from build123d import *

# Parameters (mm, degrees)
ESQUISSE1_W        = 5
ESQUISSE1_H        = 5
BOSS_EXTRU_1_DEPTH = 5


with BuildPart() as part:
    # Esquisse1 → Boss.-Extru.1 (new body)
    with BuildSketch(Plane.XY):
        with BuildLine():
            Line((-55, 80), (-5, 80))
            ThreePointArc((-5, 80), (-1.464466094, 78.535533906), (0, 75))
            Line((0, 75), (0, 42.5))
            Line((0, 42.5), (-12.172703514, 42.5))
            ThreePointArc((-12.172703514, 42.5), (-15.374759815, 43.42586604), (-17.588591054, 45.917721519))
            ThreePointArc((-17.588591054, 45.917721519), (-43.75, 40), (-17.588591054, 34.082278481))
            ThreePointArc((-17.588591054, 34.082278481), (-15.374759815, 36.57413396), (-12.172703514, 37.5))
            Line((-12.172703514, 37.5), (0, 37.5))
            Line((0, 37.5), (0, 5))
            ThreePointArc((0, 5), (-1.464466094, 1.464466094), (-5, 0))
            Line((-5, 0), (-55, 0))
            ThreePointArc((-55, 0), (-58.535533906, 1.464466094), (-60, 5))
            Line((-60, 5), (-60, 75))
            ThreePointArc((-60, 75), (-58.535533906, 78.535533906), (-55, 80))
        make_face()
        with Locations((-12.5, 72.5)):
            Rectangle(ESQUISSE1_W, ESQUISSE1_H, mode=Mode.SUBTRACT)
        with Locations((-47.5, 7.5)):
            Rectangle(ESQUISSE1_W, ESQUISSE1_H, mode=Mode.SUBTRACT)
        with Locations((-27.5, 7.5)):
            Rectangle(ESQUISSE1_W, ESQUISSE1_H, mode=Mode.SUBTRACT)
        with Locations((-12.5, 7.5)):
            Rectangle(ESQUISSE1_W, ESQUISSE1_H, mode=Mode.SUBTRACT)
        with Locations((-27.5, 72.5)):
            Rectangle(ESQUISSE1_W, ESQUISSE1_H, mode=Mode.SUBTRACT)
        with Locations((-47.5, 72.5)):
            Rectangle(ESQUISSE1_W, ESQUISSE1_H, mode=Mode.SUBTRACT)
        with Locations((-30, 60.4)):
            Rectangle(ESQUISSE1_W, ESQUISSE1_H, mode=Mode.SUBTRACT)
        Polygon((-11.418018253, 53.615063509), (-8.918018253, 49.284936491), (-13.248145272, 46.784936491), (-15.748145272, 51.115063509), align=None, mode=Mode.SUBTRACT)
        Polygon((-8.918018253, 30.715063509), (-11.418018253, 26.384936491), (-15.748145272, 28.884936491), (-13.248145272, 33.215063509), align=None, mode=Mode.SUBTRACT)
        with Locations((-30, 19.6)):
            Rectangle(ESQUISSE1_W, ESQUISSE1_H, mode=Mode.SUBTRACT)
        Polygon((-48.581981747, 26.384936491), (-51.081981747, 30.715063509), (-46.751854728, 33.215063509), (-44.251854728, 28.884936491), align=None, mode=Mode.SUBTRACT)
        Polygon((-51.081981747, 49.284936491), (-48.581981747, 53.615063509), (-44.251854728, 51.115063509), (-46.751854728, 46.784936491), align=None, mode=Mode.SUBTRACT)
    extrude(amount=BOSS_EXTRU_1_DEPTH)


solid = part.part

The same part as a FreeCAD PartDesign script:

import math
import FreeCAD as App
import Part
import Sketcher
Q = App.Units.Quantity


def add_polygon(sketch, points):
    """Adds a closed chain of lines whose ends are joined by coincident constraints."""
    first, n = sketch.GeometryCount, len(points)
    for a, b in zip(points, points[1:] + points[:1]):
        sketch.addGeometry(Part.LineSegment(App.Vector(*a, 0), App.Vector(*b, 0)), False)
    for i in range(n):
        sketch.addConstraint(Sketcher.Constraint("Coincident", first + i, 2, first + (i + 1) % n, 1))

doc = App.newDocument("Part")
body = doc.addObject("PartDesign::Body", "Body")

sketch1 = doc.addObject("Sketcher::SketchObject", "Sketch")
body.addObject(sketch1)
sketch1.AttachmentSupport = (doc.XY_Plane, [""])
sketch1.MapMode = "FlatFace"
sketch1.addGeometry(Part.LineSegment(App.Vector(-5, 80, 0), App.Vector(-55, 80, 0)), False)
sketch1.addGeometry(Part.ArcOfCircle(Part.Circle(App.Vector(-55, 75, 0), App.Vector(0, 0, 1), 5), math.radians(90), math.radians(180)), False)
sketch1.addGeometry(Part.LineSegment(App.Vector(-60, 75, 0), App.Vector(-60, 5, 0)), False)
sketch1.addGeometry(Part.ArcOfCircle(Part.Circle(App.Vector(-55, 5, 0), App.Vector(0, 0, 1), 5), math.radians(180), math.radians(270)), False)
sketch1.addGeometry(Part.LineSegment(App.Vector(-55, 0, 0), App.Vector(-5, 0, 0)), False)
sketch1.addGeometry(Part.ArcOfCircle(Part.Circle(App.Vector(-5, 5, 0), App.Vector(0, 0, 1), 5), math.radians(-90), math.radians(0)), False)
sketch1.addGeometry(Part.LineSegment(App.Vector(0, 5, 0), App.Vector(0, 37.5, 0)), False)
sketch1.addGeometry(Part.LineSegment(App.Vector(0, 37.5, 0), App.Vector(-12.2, 37.5, 0)), False)
sketch1.addGeometry(Part.ArcOfCircle(Part.Circle(App.Vector(-12.2, 31.5, 0), App.Vector(0, 0, 1), 6), math.radians(90), math.radians(155)), False)
sketch1.addGeometry(Part.ArcOfCircle(Part.Circle(App.Vector(-30, 40, 0), App.Vector(0, 0, 1), 13.8), math.radians(25), math.radians(335)), False)
sketch1.addGeometry(Part.ArcOfCircle(Part.Circle(App.Vector(-12.2, 48.5, 0), App.Vector(0, 0, 1), 6), math.radians(-155), math.radians(-90)), False)
sketch1.addGeometry(Part.LineSegment(App.Vector(-12.2, 42.5, 0), App.Vector(0, 42.5, 0)), False)
sketch1.addGeometry(Part.LineSegment(App.Vector(0, 42.5, 0), App.Vector(0, 75, 0)), False)
sketch1.addGeometry(Part.ArcOfCircle(Part.Circle(App.Vector(-5, 75, 0), App.Vector(0, 0, 1), 5), math.radians(0), math.radians(90)), False)
add_polygon(sketch1, [(-15, 5), (-15, 10), (-10, 10), (-10, 5)])
add_polygon(sketch1, [(-30, 5), (-30, 10), (-25, 10), (-25, 5)])
add_polygon(sketch1, [(-8.9, 30.7), (-11.4, 26.4), (-15.7, 28.9), (-13.2, 33.2)])
add_polygon(sketch1, [(-32.5, 17.1), (-32.5, 22.1), (-27.5, 22.1), (-27.5, 17.1)])
add_polygon(sketch1, [(-50, 5), (-50, 10), (-45, 10), (-45, 5)])
add_polygon(sketch1, [(-48.6, 26.4), (-51.1, 30.7), (-46.8, 33.2), (-44.3, 28.9)])
add_polygon(sketch1, [(-11.4, 53.6), (-8.9, 49.3), (-13.2, 46.8), (-15.7, 51.1)])
add_polygon(sketch1, [(-15, 70), (-15, 75), (-10, 75), (-10, 70)])
add_polygon(sketch1, [(-30, 70), (-30, 75), (-25, 75), (-25, 70)])
add_polygon(sketch1, [(-51.1, 49.3), (-48.6, 53.6), (-44.3, 51.1), (-46.8, 46.8)])
add_polygon(sketch1, [(-32.5, 57.9), (-32.5, 62.9), (-27.5, 62.9), (-27.5, 57.9)])
add_polygon(sketch1, [(-50, 70), (-50, 75), (-45, 75), (-45, 70)])
sketch1.addConstraint(Sketcher.Constraint("Tangent", 0, 2, 1, 1))
sketch1.addConstraint(Sketcher.Constraint("Tangent", 1, 2, 2, 1))
sketch1.addConstraint(Sketcher.Constraint("Tangent", 2, 2, 3, 1))
sketch1.addConstraint(Sketcher.Constraint("Tangent", 3, 2, 4, 1))
sketch1.addConstraint(Sketcher.Constraint("Tangent", 4, 2, 5, 1))
sketch1.addConstraint(Sketcher.Constraint("Tangent", 5, 2, 6, 1))
sketch1.addConstraint(Sketcher.Constraint("Coincident", 6, 2, 7, 1))
sketch1.addConstraint(Sketcher.Constraint("Tangent", 7, 2, 8, 1))
sketch1.addConstraint(Sketcher.Constraint("Tangent", 8, 2, 9, 2))
sketch1.addConstraint(Sketcher.Constraint("Tangent", 9, 1, 10, 1))
sketch1.addConstraint(Sketcher.Constraint("Tangent", 10, 2, 11, 1))
sketch1.addConstraint(Sketcher.Constraint("Coincident", 11, 2, 12, 1))
sketch1.addConstraint(Sketcher.Constraint("Tangent", 12, 2, 13, 1))
sketch1.addConstraint(Sketcher.Constraint("Tangent", 13, 2, 0, 1))
sketch1.addConstraint(Sketcher.Constraint("Horizontal", 0))
sketch1.addConstraint(Sketcher.Constraint("Vertical", 2))
sketch1.addConstraint(Sketcher.Constraint("Horizontal", 4))
sketch1.addConstraint(Sketcher.Constraint("Vertical", 6))
sketch1.addConstraint(Sketcher.Constraint("Horizontal", 7))
sketch1.addConstraint(Sketcher.Constraint("Horizontal", 11))
sketch1.addConstraint(Sketcher.Constraint("Vertical", 12))
sketch1.addConstraint(Sketcher.Constraint("Vertical", 14))
sketch1.addConstraint(Sketcher.Constraint("Horizontal", 15))
sketch1.addConstraint(Sketcher.Constraint("Vertical", 16))
sketch1.addConstraint(Sketcher.Constraint("Horizontal", 17))
sketch1.addConstraint(Sketcher.Constraint("Vertical", 18))
sketch1.addConstraint(Sketcher.Constraint("Horizontal", 19))
sketch1.addConstraint(Sketcher.Constraint("Vertical", 20))
sketch1.addConstraint(Sketcher.Constraint("Horizontal", 21))
sketch1.addConstraint(Sketcher.Constraint("Vertical", 26))
sketch1.addConstraint(Sketcher.Constraint("Horizontal", 27))
sketch1.addConstraint(Sketcher.Constraint("Vertical", 28))
sketch1.addConstraint(Sketcher.Constraint("Horizontal", 29))
sketch1.addConstraint(Sketcher.Constraint("Vertical", 30))
sketch1.addConstraint(Sketcher.Constraint("Horizontal", 31))
sketch1.addConstraint(Sketcher.Constraint("Vertical", 32))
sketch1.addConstraint(Sketcher.Constraint("Horizontal", 33))
sketch1.addConstraint(Sketcher.Constraint("Vertical", 42))
sketch1.addConstraint(Sketcher.Constraint("Horizontal", 43))
sketch1.addConstraint(Sketcher.Constraint("Vertical", 44))
sketch1.addConstraint(Sketcher.Constraint("Horizontal", 45))
sketch1.addConstraint(Sketcher.Constraint("Vertical", 46))
sketch1.addConstraint(Sketcher.Constraint("Horizontal", 47))
sketch1.addConstraint(Sketcher.Constraint("Vertical", 48))
sketch1.addConstraint(Sketcher.Constraint("Horizontal", 49))
sketch1.addConstraint(Sketcher.Constraint("Vertical", 54))
sketch1.addConstraint(Sketcher.Constraint("Horizontal", 55))
sketch1.addConstraint(Sketcher.Constraint("Vertical", 56))
sketch1.addConstraint(Sketcher.Constraint("Horizontal", 57))
sketch1.addConstraint(Sketcher.Constraint("Vertical", 58))
sketch1.addConstraint(Sketcher.Constraint("Horizontal", 59))
sketch1.addConstraint(Sketcher.Constraint("Vertical", 60))
sketch1.addConstraint(Sketcher.Constraint("Horizontal", 61))
sketch1.addConstraint(Sketcher.Constraint("Equal", 1, 3))
sketch1.addConstraint(Sketcher.Constraint("Equal", 3, 5))
sketch1.addConstraint(Sketcher.Constraint("Equal", 8, 10))
sketch1.addConstraint(Sketcher.Constraint("Equal", 5, 13))
sketch1.addConstraint(Sketcher.Constraint("PointOnObject", 3, 2, -1))
sketch1.addConstraint(Sketcher.Constraint("PointOnObject", 5, 2, -2))
sketch1.addConstraint(Sketcher.Constraint("PointOnObject", 11, 2, -2))
sketch1.addConstraint(Sketcher.Constraint("Perpendicular", 22, 23))
sketch1.addConstraint(Sketcher.Constraint("Perpendicular", 23, 24))
sketch1.addConstraint(Sketcher.Constraint("Perpendicular", 24, 25))
sketch1.addConstraint(Sketcher.Constraint("Perpendicular", 34, 35))
sketch1.addConstraint(Sketcher.Constraint("Perpendicular", 35, 36))
sketch1.addConstraint(Sketcher.Constraint("Perpendicular", 36, 37))
sketch1.addConstraint(Sketcher.Constraint("Perpendicular", 37, 38))
sketch1.addConstraint(Sketcher.Constraint("Perpendicular", 38, 39))
sketch1.addConstraint(Sketcher.Constraint("Perpendicular", 39, 40))
sketch1.addConstraint(Sketcher.Constraint("Perpendicular", 40, 41))
sketch1.addConstraint(Sketcher.Constraint("Perpendicular", 25, 50))
sketch1.addConstraint(Sketcher.Constraint("Perpendicular", 50, 51))
sketch1.addConstraint(Sketcher.Constraint("Perpendicular", 51, 52))
sketch1.addConstraint(Sketcher.Constraint("Perpendicular", 52, 53))
sketch1.addConstraint(Sketcher.Constraint("Horizontal", 5, 2, 16, 2))
sketch1.addConstraint(Sketcher.Constraint("Horizontal", 15, 2, 18, 2))
sketch1.addConstraint(Sketcher.Constraint("Horizontal", 17, 2, 20, 2))
sketch1.addConstraint(Sketcher.Constraint("Horizontal", 19, 2, 30, 2))
sketch1.addConstraint(Sketcher.Constraint("Horizontal", 21, 2, 32, 2))
sketch1.addConstraint(Sketcher.Constraint("Horizontal", 25, 2, 34, 2))
sketch1.addConstraint(Sketcher.Constraint("Horizontal", 24, 2, 35, 2))
sketch1.addConstraint(Sketcher.Constraint("Horizontal", 23, 2, 36, 2))
sketch1.addConstraint(Sketcher.Constraint("Horizontal", 12, 2, 42, 2))
sketch1.addConstraint(Sketcher.Constraint("Horizontal", 43, 2, 46, 2))
sketch1.addConstraint(Sketcher.Constraint("Horizontal", 45, 2, 48, 2))
sketch1.addConstraint(Sketcher.Constraint("Horizontal", 41, 2, 50, 2))
sketch1.addConstraint(Sketcher.Constraint("Horizontal", 40, 2, 51, 2))
sketch1.addConstraint(Sketcher.Constraint("Horizontal", 39, 2, 52, 2))
sketch1.addConstraint(Sketcher.Constraint("Horizontal", 47, 2, 58, 2))
sketch1.addConstraint(Sketcher.Constraint("Horizontal", 49, 2, 60, 2))
sketch1.addConstraint(Sketcher.Constraint("Vertical", 8, 3, 10, 3))
sketch1.addConstraint(Sketcher.Constraint("Vertical", 9, 3, 18, 2))
sketch1.addConstraint(Sketcher.Constraint("Vertical", 25, 2, 38, 2))
sketch1.addConstraint(Sketcher.Constraint("Vertical", 24, 2, 39, 2))
sketch1.addConstraint(Sketcher.Constraint("Vertical", 23, 2, 40, 2))
sketch1.addConstraint(Sketcher.Constraint("Vertical", 17, 2, 42, 2))
sketch1.addConstraint(Sketcher.Constraint("Vertical", 16, 2, 43, 2))
sketch1.addConstraint(Sketcher.Constraint("Vertical", 21, 2, 46, 2))
sketch1.addConstraint(Sketcher.Constraint("Vertical", 20, 2, 47, 2))
sketch1.addConstraint(Sketcher.Constraint("Vertical", 37, 2, 50, 2))
sketch1.addConstraint(Sketcher.Constraint("Vertical", 36, 2, 51, 2))
sketch1.addConstraint(Sketcher.Constraint("Vertical", 29, 2, 54, 2))
sketch1.addConstraint(Sketcher.Constraint("Vertical", 28, 2, 55, 2))
sketch1.addConstraint(Sketcher.Constraint("Vertical", 33, 2, 58, 2))
sketch1.addConstraint(Sketcher.Constraint("Vertical", 32, 2, 59, 2))
sketch1.addConstraint(Sketcher.Constraint("Equal", 17, 19))
sketch1.addConstraint(Sketcher.Constraint("Equal", 21, 27))
sketch1.addConstraint(Sketcher.Constraint("Equal", 29, 31))
sketch1.addConstraint(Sketcher.Constraint("Equal", 6, 12))
sketch1.addConstraint(Sketcher.Constraint("Equal", 61, 14))
sketch1.addConstraint(Sketcher.Constraint("Equal", 20, 26))
sketch1.addConstraint(Sketcher.Constraint("Equal", 32, 42))
sketch1.addConstraint(Sketcher.Constraint("Equal", 48, 54))
sketch1.addConstraint(Sketcher.Constraint("Equal", 22, 23))
sketch1.addConstraint(Sketcher.Constraint("Radius", 1, Q("5 mm")))
sketch1.addConstraint(Sketcher.Constraint("Radius", 8, Q("6 mm")))
sketch1.addConstraint(Sketcher.Constraint("DistanceX", 0, 2, 0, 1, Q("50 mm")))
sketch1.addConstraint(Sketcher.Constraint("DistanceX", 15, 1, 15, 2, Q("5 mm")))
sketch1.addConstraint(Sketcher.Constraint("DistanceY", 2, 2, 2, 1, Q("70 mm")))
sketch1.addConstraint(Sketcher.Constraint("Angle", 22, Q("-120 deg")))
sketch1.addConstraint(Sketcher.Constraint("Radius", 9, Q("13.75 mm")))
sketch1.addConstraint(Sketcher.Constraint("Distance", 22, Q("5 mm")))
sketch1.addConstraint(Sketcher.Constraint("DistanceY", 6, 1, 6, 2, Q("32.5 mm")))
sketch1.addConstraint(Sketcher.Constraint("DistanceX", 9, 3, -1, 1, Q("30 mm")))
sketch1.addConstraint(Sketcher.Constraint("DistanceX", 14, 2, -1, 1, Q("15 mm")))
sketch1.addConstraint(Sketcher.Constraint("DistanceX", 30, 2, -1, 1, Q("50 mm")))
sketch1.addConstraint(Sketcher.Constraint("DistanceX", 26, 2, -1, 1, Q("32.5 mm")))
sketch1.addConstraint(Sketcher.Constraint("DistanceY", -1, 1, 26, 2, Q("22.1 mm")))
sketch1.addConstraint(Sketcher.Constraint("DistanceY", -1, 1, 54, 2, Q("62.9 mm")))
sketch1.addConstraint(Sketcher.Constraint("DistanceX", 22, 2, -1, 1, Q("11.418018 mm")))
sketch1.addConstraint(Sketcher.Constraint("DistanceX", 34, 2, -1, 1, Q("51.081982 mm")))
sketch1.addConstraint(Sketcher.Constraint("DistanceY", -1, 1, 22, 2, Q("26.384936 mm")))
sketch1.addConstraint(Sketcher.Constraint("DistanceY", -1, 1, 38, 2, Q("49.284936 mm")))
pad1 = doc.addObject("PartDesign::Pad", "Pad")
body.addObject(pad1)
pad1.Profile = sketch1
pad1.Length = 5

doc.recompute()
